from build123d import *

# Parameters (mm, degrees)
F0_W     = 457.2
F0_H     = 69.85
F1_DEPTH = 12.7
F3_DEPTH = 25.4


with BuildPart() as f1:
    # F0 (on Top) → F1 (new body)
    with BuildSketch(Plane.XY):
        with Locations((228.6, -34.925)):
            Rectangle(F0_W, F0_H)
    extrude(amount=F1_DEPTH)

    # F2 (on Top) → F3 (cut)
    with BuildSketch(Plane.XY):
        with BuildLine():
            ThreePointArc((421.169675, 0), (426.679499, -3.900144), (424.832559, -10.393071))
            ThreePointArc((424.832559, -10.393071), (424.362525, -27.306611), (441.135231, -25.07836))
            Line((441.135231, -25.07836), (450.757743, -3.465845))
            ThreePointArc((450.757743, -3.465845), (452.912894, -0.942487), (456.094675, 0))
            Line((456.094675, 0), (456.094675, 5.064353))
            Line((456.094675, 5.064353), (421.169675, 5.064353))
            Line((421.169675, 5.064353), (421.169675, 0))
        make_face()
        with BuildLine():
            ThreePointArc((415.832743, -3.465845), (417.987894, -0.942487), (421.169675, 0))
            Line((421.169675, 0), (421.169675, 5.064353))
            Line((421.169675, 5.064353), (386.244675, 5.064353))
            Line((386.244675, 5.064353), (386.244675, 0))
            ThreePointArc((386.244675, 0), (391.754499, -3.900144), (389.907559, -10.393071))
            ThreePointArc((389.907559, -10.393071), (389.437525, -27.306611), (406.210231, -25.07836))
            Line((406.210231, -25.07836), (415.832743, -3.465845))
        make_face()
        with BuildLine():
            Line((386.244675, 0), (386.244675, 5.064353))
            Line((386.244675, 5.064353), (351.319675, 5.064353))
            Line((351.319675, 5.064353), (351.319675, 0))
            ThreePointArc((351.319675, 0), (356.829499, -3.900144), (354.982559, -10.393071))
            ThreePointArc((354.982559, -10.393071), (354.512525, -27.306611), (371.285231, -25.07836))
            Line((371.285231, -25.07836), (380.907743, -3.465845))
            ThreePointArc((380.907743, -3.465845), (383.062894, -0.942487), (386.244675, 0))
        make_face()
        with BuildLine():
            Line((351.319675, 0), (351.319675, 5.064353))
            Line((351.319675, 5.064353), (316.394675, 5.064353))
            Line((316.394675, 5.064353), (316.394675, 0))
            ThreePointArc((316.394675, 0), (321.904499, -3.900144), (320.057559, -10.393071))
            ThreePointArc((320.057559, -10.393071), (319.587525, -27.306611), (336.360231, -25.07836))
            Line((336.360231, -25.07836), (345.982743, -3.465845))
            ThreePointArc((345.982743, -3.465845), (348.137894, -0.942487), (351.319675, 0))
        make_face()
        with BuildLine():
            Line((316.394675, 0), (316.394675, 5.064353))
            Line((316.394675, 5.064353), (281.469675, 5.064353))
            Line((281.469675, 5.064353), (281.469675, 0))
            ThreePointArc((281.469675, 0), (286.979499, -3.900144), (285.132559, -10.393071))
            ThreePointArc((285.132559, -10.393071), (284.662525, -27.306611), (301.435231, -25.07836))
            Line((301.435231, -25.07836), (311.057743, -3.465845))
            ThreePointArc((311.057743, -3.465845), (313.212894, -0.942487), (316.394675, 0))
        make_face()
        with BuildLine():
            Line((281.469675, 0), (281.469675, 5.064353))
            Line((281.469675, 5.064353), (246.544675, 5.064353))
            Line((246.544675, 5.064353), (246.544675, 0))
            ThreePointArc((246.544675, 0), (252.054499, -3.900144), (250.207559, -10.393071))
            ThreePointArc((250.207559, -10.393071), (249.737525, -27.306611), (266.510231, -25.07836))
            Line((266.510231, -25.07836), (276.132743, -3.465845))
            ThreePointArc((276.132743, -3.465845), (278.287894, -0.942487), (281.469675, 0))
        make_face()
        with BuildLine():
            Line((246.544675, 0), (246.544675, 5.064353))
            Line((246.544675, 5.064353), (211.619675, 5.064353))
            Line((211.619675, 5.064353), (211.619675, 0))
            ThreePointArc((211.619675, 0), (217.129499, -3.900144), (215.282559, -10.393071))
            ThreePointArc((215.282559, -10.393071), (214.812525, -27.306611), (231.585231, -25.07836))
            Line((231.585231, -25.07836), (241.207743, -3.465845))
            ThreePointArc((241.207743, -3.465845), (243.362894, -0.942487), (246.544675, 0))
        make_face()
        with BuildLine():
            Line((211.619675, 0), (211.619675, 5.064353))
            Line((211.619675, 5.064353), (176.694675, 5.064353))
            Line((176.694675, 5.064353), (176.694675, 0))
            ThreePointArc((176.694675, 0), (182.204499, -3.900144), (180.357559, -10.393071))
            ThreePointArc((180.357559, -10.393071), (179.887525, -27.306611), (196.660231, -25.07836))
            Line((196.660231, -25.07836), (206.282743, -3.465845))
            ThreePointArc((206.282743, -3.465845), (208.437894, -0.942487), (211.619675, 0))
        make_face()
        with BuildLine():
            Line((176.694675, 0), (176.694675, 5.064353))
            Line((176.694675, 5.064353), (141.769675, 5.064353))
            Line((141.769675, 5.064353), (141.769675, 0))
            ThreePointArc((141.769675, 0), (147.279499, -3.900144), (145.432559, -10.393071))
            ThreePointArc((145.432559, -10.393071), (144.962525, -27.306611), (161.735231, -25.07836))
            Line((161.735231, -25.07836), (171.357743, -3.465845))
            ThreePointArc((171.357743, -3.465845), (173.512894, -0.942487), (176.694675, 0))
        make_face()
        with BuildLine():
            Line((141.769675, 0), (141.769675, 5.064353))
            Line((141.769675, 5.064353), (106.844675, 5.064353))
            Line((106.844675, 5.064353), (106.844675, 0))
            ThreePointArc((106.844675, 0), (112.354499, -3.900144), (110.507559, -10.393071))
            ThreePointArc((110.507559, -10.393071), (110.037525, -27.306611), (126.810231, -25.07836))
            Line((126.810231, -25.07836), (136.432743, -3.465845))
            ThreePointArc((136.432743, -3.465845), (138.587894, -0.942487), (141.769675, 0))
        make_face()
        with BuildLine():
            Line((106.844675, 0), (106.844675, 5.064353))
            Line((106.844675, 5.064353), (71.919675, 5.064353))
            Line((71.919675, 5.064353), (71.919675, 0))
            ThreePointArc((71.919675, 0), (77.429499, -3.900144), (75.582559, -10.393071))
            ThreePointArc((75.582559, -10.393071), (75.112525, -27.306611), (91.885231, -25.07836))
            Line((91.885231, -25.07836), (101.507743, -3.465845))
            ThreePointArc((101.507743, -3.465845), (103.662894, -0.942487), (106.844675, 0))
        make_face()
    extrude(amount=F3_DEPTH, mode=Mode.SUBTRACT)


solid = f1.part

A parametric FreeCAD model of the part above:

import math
import FreeCAD as App
import Part
import Sketcher

V = App.Vector
Q = App.Units.Quantity


def add_polygon(sketch, points):
    """Adds a closed chain of lines whose ends are joined by coincident constraints."""
    first, n = sketch.GeometryCount, len(points)
    for a, b in zip(points, points[1:] + points[:1]):
        sketch.addGeometry(Part.LineSegment(App.Vector(*a, 0), App.Vector(*b, 0)), False)
    for i in range(n):
        sketch.addConstraint(Sketcher.Constraint("Coincident", first + i, 2, first + (i + 1) % n, 1))

doc = App.newDocument("Part")
body = doc.addObject("PartDesign::Body", "Body")

# Sketch on XY plane
sketch1 = body.newObject("Sketcher::SketchObject", "Sketch")
sketch1.AttachmentSupport = (doc.getObject("XY_Plane"), [""])
sketch1.MapMode = "FlatFace"
add_polygon(sketch1, [(0, 0), (0, -69.85), (457.2, -69.85), (457.2, 0)])  # lines 0-3
sketch1.addConstraint(Sketcher.Constraint("Vertical", 0))
sketch1.addConstraint(Sketcher.Constraint("Horizontal", 1))
sketch1.addConstraint(Sketcher.Constraint("Vertical", 2))
sketch1.addConstraint(Sketcher.Constraint("Horizontal", 3))
sketch1.addConstraint(Sketcher.Constraint("Coincident", 3, 2, -1, 1))
sketch1.addConstraint(Sketcher.Constraint("DistanceX", 1, 1, 1, 2, Q("18 in")))
sketch1.addConstraint(Sketcher.Constraint("DistanceY", 0, 2, 0, 1, Q("2.75 in")))
pad1 = body.newObject("PartDesign::Pad", "Pad")
pad1.Profile = sketch1
pad1.Length = Q("0.5 in")

# Sketch on XY plane
sketch2 = body.newObject("Sketcher::SketchObject", "Sketch001")
sketch2.AttachmentSupport = (doc.getObject("XY_Plane"), [""])
sketch2.MapMode = "FlatFace"
sketch2.addGeometry(Part.ArcOfCircle(Part.Circle(V(421.169675, -5.842, 0), V(0, 0, 1), 5.842), math.radians(-51.171498), math.radians(90)), False)
sketch2.addGeometry(Part.ArcOfCircle(Part.Circle(V(431.8, -19.05, 0), V(0, 0, 1), 11.1125), math.radians(128.828495), math.radians(327.147065)), False)
sketch2.addGeometry(Part.LineSegment(V(441.135231, -25.07836, 0), V(450.757743, -3.465845, 0)), False)
sketch2.addGeometry(Part.ArcOfCircle(Part.Circle(V(456.094676, -5.842, 0), V(0, 0, 1), 5.842), math.radians(90.000011), math.radians(156.000002)), False)
sketch2.addGeometry(Part.LineSegment(V(456.094675, 0, 0), V(456.094675, 5.064353, 0)), False)
sketch2.addGeometry(Part.LineSegment(V(456.094675, 5.064353, 0), V(71.919675, 5.064353, 0)), False)
sketch2.addGeometry(Part.LineSegment(V(71.919675, 5.064353, 0), V(71.919675, 0, 0)), False)
sketch2.addGeometry(Part.ArcOfCircle(Part.Circle(V(71.919675, -5.842, 0), V(0, 0, 1), 5.842), math.radians(-51.171498), math.radians(90)), False)
sketch2.addGeometry(Part.ArcOfCircle(Part.Circle(V(82.55, -19.05, 0), V(0, 0, 1), 11.1125), math.radians(128.828495), math.radians(327.147065)), False)
sketch2.addGeometry(Part.LineSegment(V(91.885231, -25.07836, 0), V(101.507743, -3.465845, 0)), False)
sketch2.addGeometry(Part.ArcOfCircle(Part.Circle(V(106.844676, -5.842, 0), V(0, 0, 1), 5.842), math.radians(90.000011), math.radians(156.000002)), False)
sketch2.addGeometry(Part.ArcOfCircle(Part.Circle(V(106.844675, -5.842, 0), V(0, 0, 1), 5.842), math.radians(-51.171498), math.radians(90)), False)
sketch2.addGeometry(Part.ArcOfCircle(Part.Circle(V(117.475, -19.05, 0), V(0, 0, 1), 11.1125), math.radians(128.828495), math.radians(327.147065)), False)
sketch2.addGeometry(Part.LineSegment(V(126.810231, -25.07836, 0), V(136.432743, -3.465845, 0)), False)
sketch2.addGeometry(Part.ArcOfCircle(Part.Circle(V(141.769676, -5.842, 0), V(0, 0, 1), 5.842), math.radians(90.000011), math.radians(156.000002)), False)
sketch2.addGeometry(Part.ArcOfCircle(Part.Circle(V(141.769675, -5.842, 0), V(0, 0, 1), 5.842), math.radians(-51.171498), math.radians(90)), False)
sketch2.addGeometry(Part.ArcOfCircle(Part.Circle(V(152.4, -19.05, 0), V(0, 0, 1), 11.1125), math.radians(128.828495), math.radians(327.147065)), False)
sketch2.addGeometry(Part.LineSegment(V(161.735231, -25.07836, 0), V(171.357743, -3.465845, 0)), False)
sketch2.addGeometry(Part.ArcOfCircle(Part.Circle(V(176.694676, -5.842, 0), V(0, 0, 1), 5.842), math.radians(90.000011), math.radians(156.000002)), False)
sketch2.addGeometry(Part.ArcOfCircle(Part.Circle(V(176.694675, -5.842, 0), V(0, 0, 1), 5.842), math.radians(-51.171498), math.radians(90)), False)
sketch2.addGeometry(Part.ArcOfCircle(Part.Circle(V(187.325, -19.05, 0), V(0, 0, 1), 11.1125), math.radians(128.828495), math.radians(327.147065)), False)
sketch2.addGeometry(Part.LineSegment(V(196.660231, -25.07836, 0), V(206.282743, -3.465845, 0)), False)
sketch2.addGeometry(Part.ArcOfCircle(Part.Circle(V(211.619676, -5.842, 0), V(0, 0, 1), 5.842), math.radians(90.000011), math.radians(156.000002)), False)
sketch2.addGeometry(Part.ArcOfCircle(Part.Circle(V(211.619675, -5.842, 0), V(0, 0, 1), 5.842), math.radians(-51.171498), math.radians(90)), False)
sketch2.addGeometry(Part.ArcOfCircle(Part.Circle(V(222.25, -19.05, 0), V(0, 0, 1), 11.1125), math.radians(128.828495), math.radians(327.147065)), False)
sketch2.addGeometry(Part.LineSegment(V(231.585231, -25.07836, 0), V(241.207743, -3.465845, 0)), False)
sketch2.addGeometry(Part.ArcOfCircle(Part.Circle(V(246.544676, -5.842, 0), V(0, 0, 1), 5.842), math.radians(90.000011), math.radians(156.000002)), False)
sketch2.addGeometry(Part.ArcOfCircle(Part.Circle(V(246.544675, -5.842, 0), V(0, 0, 1), 5.842), math.radians(-51.171498), math.radians(90)), False)
sketch2.addGeometry(Part.ArcOfCircle(Part.Circle(V(257.175, -19.05, 0), V(0, 0, 1), 11.1125), math.radians(128.828495), math.radians(327.147065)), False)
sketch2.addGeometry(Part.LineSegment(V(266.510231, -25.07836, 0), V(276.132743, -3.465845, 0)), False)
sketch2.addGeometry(Part.ArcOfCircle(Part.Circle(V(281.469676, -5.842, 0), V(0, 0, 1), 5.842), math.radians(90.000011), math.radians(156.000002)), False)
sketch2.addGeometry(Part.ArcOfCircle(Part.Circle(V(281.469675, -5.842, 0), V(0, 0, 1), 5.842), math.radians(-51.171498), math.radians(90)), False)
sketch2.addGeometry(Part.ArcOfCircle(Part.Circle(V(292.1, -19.05, 0), V(0, 0, 1), 11.1125), math.radians(128.828495), math.radians(327.147065)), False)
sketch2.addGeometry(Part.LineSegment(V(301.435231, -25.07836, 0), V(311.057743, -3.465845, 0)), False)
sketch2.addGeometry(Part.ArcOfCircle(Part.Circle(V(316.394676, -5.842, 0), V(0, 0, 1), 5.842), math.radians(90.000011), math.radians(156.000002)), False)
sketch2.addGeometry(Part.ArcOfCircle(Part.Circle(V(316.394675, -5.842, 0), V(0, 0, 1), 5.842), math.radians(-51.171498), math.radians(90)), False)
sketch2.addGeometry(Part.ArcOfCircle(Part.Circle(V(327.025, -19.05, 0), V(0, 0, 1), 11.1125), math.radians(128.828495), math.radians(327.147065)), False)
sketch2.addGeometry(Part.LineSegment(V(336.360231, -25.07836, 0), V(345.982743, -3.465845, 0)), False)
sketch2.addGeometry(Part.ArcOfCircle(Part.Circle(V(351.319676, -5.842, 0), V(0, 0, 1), 5.842), math.radians(90.000011), math.radians(156.000002)), False)
sketch2.addGeometry(Part.ArcOfCircle(Part.Circle(V(351.319675, -5.842, 0), V(0, 0, 1), 5.842), math.radians(-51.171498), math.radians(90)), False)
sketch2.addGeometry(Part.ArcOfCircle(Part.Circle(V(361.95, -19.05, 0), V(0, 0, 1), 11.1125), math.radians(128.828495), math.radians(327.147065)), False)
sketch2.addGeometry(Part.LineSegment(V(371.285231, -25.07836, 0), V(380.907743, -3.465845, 0)), False)
sketch2.addGeometry(Part.ArcOfCircle(Part.Circle(V(386.244676, -5.842, 0), V(0, 0, 1), 5.842), math.radians(90.000011), math.radians(156.000002)), False)
sketch2.addGeometry(Part.ArcOfCircle(Part.Circle(V(386.244675, -5.842, 0), V(0, 0, 1), 5.842), math.radians(-51.171498), math.radians(90)), False)
sketch2.addGeometry(Part.ArcOfCircle(Part.Circle(V(396.875, -19.05, 0), V(0, 0, 1), 11.1125), math.radians(128.828495), math.radians(327.147065)), False)
sketch2.addGeometry(Part.LineSegment(V(406.210231, -25.07836, 0), V(415.832743, -3.465845, 0)), False)
sketch2.addGeometry(Part.ArcOfCircle(Part.Circle(V(421.169676, -5.842, 0), V(0, 0, 1), 5.842), math.radians(90.000011), math.radians(156.000002)), False)
sketch2.addConstraint(Sketcher.Constraint("Tangent", 0, 1, 1, 1))
sketch2.addConstraint(Sketcher.Constraint("Coincident", 1, 2, 2, 1))
sketch2.addConstraint(Sketcher.Constraint("Tangent", 2, 2, 3, 2))
sketch2.addConstraint(Sketcher.Constraint("Coincident", 3, 1, 4, 1))
sketch2.addConstraint(Sketcher.Constraint("Coincident", 4, 2, 5, 1))
sketch2.addConstraint(Sketcher.Constraint("Coincident", 5, 2, 6, 1))
sketch2.addConstraint(Sketcher.Constraint("Coincident", 6, 2, 7, 2))
sketch2.addConstraint(Sketcher.Constraint("Tangent", 7, 1, 8, 1))
sketch2.addConstraint(Sketcher.Constraint("Coincident", 8, 2, 9, 1))
sketch2.addConstraint(Sketcher.Constraint("Tangent", 9, 2, 10, 2))
sketch2.addConstraint(Sketcher.Constraint("Tangent", 10, 1, 11, 2))
sketch2.addConstraint(Sketcher.Constraint("Tangent", 11, 1, 12, 1))
sketch2.addConstraint(Sketcher.Constraint("Coincident", 12, 2, 13, 1))
sketch2.addConstraint(Sketcher.Constraint("Tangent", 13, 2, 14, 2))
sketch2.addConstraint(Sketcher.Constraint("Tangent", 14, 1, 15, 2))
sketch2.addConstraint(Sketcher.Constraint("Tangent", 15, 1, 16, 1))
sketch2.addConstraint(Sketcher.Constraint("Coincident", 16, 2, 17, 1))
sketch2.addConstraint(Sketcher.Constraint("Tangent", 17, 2, 18, 2))
sketch2.addConstraint(Sketcher.Constraint("Tangent", 18, 1, 19, 2))
sketch2.addConstraint(Sketcher.Constraint("Tangent", 19, 1, 20, 1))
sketch2.addConstraint(Sketcher.Constraint("Coincident", 20, 2, 21, 1))
sketch2.addConstraint(Sketcher.Constraint("Tangent", 21, 2, 22, 2))
sketch2.addConstraint(Sketcher.Constraint("Tangent", 22, 1, 23, 2))
sketch2.addConstraint(Sketcher.Constraint("Tangent", 23, 1, 24, 1))
sketch2.addConstraint(Sketcher.Constraint("Coincident", 24, 2, 25, 1))
sketch2.addConstraint(Sketcher.Constraint("Tangent", 25, 2, 26, 2))
sketch2.addConstraint(Sketcher.Constraint("Tangent", 26, 1, 27, 2))
sketch2.addConstraint(Sketcher.Constraint("Tangent", 27, 1, 28, 1))
sketch2.addConstraint(Sketcher.Constraint("Coincident", 28, 2, 29, 1))
sketch2.addConstraint(Sketcher.Constraint("Tangent", 29, 2, 30, 2))
sketch2.addConstraint(Sketcher.Constraint("Tangent", 30, 1, 31, 2))
sketch2.addConstraint(Sketcher.Constraint("Tangent", 31, 1, 32, 1))
sketch2.addConstraint(Sketcher.Constraint("Coincident", 32, 2, 33, 1))
sketch2.addConstraint(Sketcher.Constraint("Tangent", 33, 2, 34, 2))
sketch2.addConstraint(Sketcher.Constraint("Tangent", 34, 1, 35, 2))
sketch2.addConstraint(Sketcher.Constraint("Tangent", 35, 1, 36, 1))
sketch2.addConstraint(Sketcher.Constraint("Coincident", 36, 2, 37, 1))
sketch2.addConstraint(Sketcher.Constraint("Tangent", 37, 2, 38, 2))
sketch2.addConstraint(Sketcher.Constraint("Tangent", 38, 1, 39, 2))
sketch2.addConstraint(Sketcher.Constraint("Tangent", 39, 1, 40, 1))
sketch2.addConstraint(Sketcher.Constraint("Coincident", 40, 2, 41, 1))
sketch2.addConstraint(Sketcher.Constraint("Tangent", 41, 2, 42, 2))
sketch2.addConstraint(Sketcher.Constraint("Tangent", 42, 1, 43, 2))
sketch2.addConstraint(Sketcher.Constraint("Tangent", 43, 1, 44, 1))
sketch2.addConstraint(Sketcher.Constraint("Coincident", 44, 2, 45, 1))
sketch2.addConstraint(Sketcher.Constraint("Tangent", 45, 2, 46, 2))
sketch2.addConstraint(Sketcher.Constraint("Tangent", 46, 1, 0, 2))
sketch2.addConstraint(Sketcher.Constraint("Vertical", 4))
sketch2.addConstraint(Sketcher.Constraint("Horizontal", 5))
sketch2.addConstraint(Sketcher.Constraint("Vertical", 6))
sketch2.addConstraint(Sketcher.Constraint("Equal", 0, 3))
sketch2.addConstraint(Sketcher.Constraint("Equal", 3, 7))
sketch2.addConstraint(Sketcher.Constraint("Equal", 1, 8))
sketch2.addConstraint(Sketcher.Constraint("Equal", 7, 10))
sketch2.addConstraint(Sketcher.Constraint("Equal", 10, 11))
sketch2.addConstraint(Sketcher.Constraint("Equal", 8, 12))
sketch2.addConstraint(Sketcher.Constraint("Equal", 11, 14))
sketch2.addConstraint(Sketcher.Constraint("Equal", 14, 15))
sketch2.addConstraint(Sketcher.Constraint("Equal", 12, 16))
sketch2.addConstraint(Sketcher.Constraint("Equal", 15, 18))
sketch2.addConstraint(Sketcher.Constraint("Equal", 18, 19))
sketch2.addConstraint(Sketcher.Constraint("Equal", 16, 20))
sketch2.addConstraint(Sketcher.Constraint("Equal", 19, 22))
sketch2.addConstraint(Sketcher.Constraint("Equal", 22, 23))
sketch2.addConstraint(Sketcher.Constraint("Equal", 20, 24))
sketch2.addConstraint(Sketcher.Constraint("Equal", 23, 26))
sketch2.addConstraint(Sketcher.Constraint("Equal", 26, 27))
sketch2.addConstraint(Sketcher.Constraint("Equal", 24, 28))
sketch2.addConstraint(Sketcher.Constraint("Equal", 27, 30))
sketch2.addConstraint(Sketcher.Constraint("Equal", 30, 31))
sketch2.addConstraint(Sketcher.Constraint("Equal", 28, 32))
sketch2.addConstraint(Sketcher.Constraint("Equal", 31, 34))
sketch2.addConstraint(Sketcher.Constraint("Equal", 34, 35))
sketch2.addConstraint(Sketcher.Constraint("Equal", 32, 36))
sketch2.addConstraint(Sketcher.Constraint("Equal", 35, 38))
sketch2.addConstraint(Sketcher.Constraint("Equal", 38, 39))
sketch2.addConstraint(Sketcher.Constraint("Equal", 36, 40))
sketch2.addConstraint(Sketcher.Constraint("Equal", 39, 42))
sketch2.addConstraint(Sketcher.Constraint("Equal", 42, 43))
sketch2.addConstraint(Sketcher.Constraint("Equal", 40, 44))
sketch2.addConstraint(Sketcher.Constraint("Equal", 43, 46))
sketch2.addConstraint(Sketcher.Constraint("PointOnObject", 3, 1, -1))
sketch2.addConstraint(Sketcher.Constraint("PointOnObject", 6, 2, -1))
sketch2.addConstraint(Sketcher.Constraint("PointOnObject", 10, 1, -1))
sketch2.addConstraint(Sketcher.Constraint("PointOnObject", 14, 1, -1))
sketch2.addConstraint(Sketcher.Constraint("PointOnObject", 18, 1, -1))
sketch2.addConstraint(Sketcher.Constraint("PointOnObject", 22, 1, -1))
sketch2.addConstraint(Sketcher.Constraint("PointOnObject", 26, 1, -1))
sketch2.addConstraint(Sketcher.Constraint("PointOnObject", 30, 1, -1))
sketch2.addConstraint(Sketcher.Constraint("PointOnObject", 34, 1, -1))
sketch2.addConstraint(Sketcher.Constraint("PointOnObject", 38, 1, -1))
sketch2.addConstraint(Sketcher.Constraint("PointOnObject", 42, 1, -1))
sketch2.addConstraint(Sketcher.Constraint("PointOnObject", 46, 1, -1))
sketch2.addConstraint(Sketcher.Constraint("Parallel", 2, 9))
sketch2.addConstraint(Sketcher.Constraint("Parallel", 9, 13))
sketch2.addConstraint(Sketcher.Constraint("Parallel", 13, 17))
sketch2.addConstraint(Sketcher.Constraint("Parallel", 17, 21))
sketch2.addConstraint(Sketcher.Constraint("Parallel", 21, 25))
sketch2.addConstraint(Sketcher.Constraint("Parallel", 25, 29))
sketch2.addConstraint(Sketcher.Constraint("Parallel", 29, 33))
sketch2.addConstraint(Sketcher.Constraint("Parallel", 33, 37))
sketch2.addConstraint(Sketcher.Constraint("Parallel", 37, 41))
sketch2.addConstraint(Sketcher.Constraint("Parallel", 41, 45))
sketch2.addConstraint(Sketcher.Constraint("Horizontal", 1, 3, 8, 3))
sketch2.addConstraint(Sketcher.Constraint("Horizontal", 8, 3, 12, 3))
sketch2.addConstraint(Sketcher.Constraint("Horizontal", 12, 3, 16, 3))
sketch2.addConstraint(Sketcher.Constraint("Horizontal", 16, 3, 20, 3))
sketch2.addConstraint(Sketcher.Constraint("Horizontal", 20, 3, 24, 3))
sketch2.addConstraint(Sketcher.Constraint("Horizontal", 24, 3, 28, 3))
sketch2.addConstraint(Sketcher.Constraint("Horizontal", 28, 3, 32, 3))
sketch2.addConstraint(Sketcher.Constraint("Horizontal", 32, 3, 36, 3))
sketch2.addConstraint(Sketcher.Constraint("Horizontal", 36, 3, 40, 3))
sketch2.addConstraint(Sketcher.Constraint("Horizontal", 40, 3, 44, 3))
sketch2.addConstraint(Sketcher.Constraint("Horizontal", 1, 2, 8, 2))
sketch2.addConstraint(Sketcher.Constraint("Horizontal", 8, 2, 12, 2))
sketch2.addConstraint(Sketcher.Constraint("Horizontal", 12, 2, 16, 2))
sketch2.addConstraint(Sketcher.Constraint("Horizontal", 16, 2, 20, 2))
sketch2.addConstraint(Sketcher.Constraint("Horizontal", 20, 2, 24, 2))
sketch2.addConstraint(Sketcher.Constraint("Horizontal", 24, 2, 28, 2))
sketch2.addConstraint(Sketcher.Constraint("Horizontal", 28, 2, 32, 2))
sketch2.addConstraint(Sketcher.Constraint("Horizontal", 32, 2, 36, 2))
sketch2.addConstraint(Sketcher.Constraint("Horizontal", 36, 2, 40, 2))
sketch2.addConstraint(Sketcher.Constraint("Horizontal", 40, 2, 44, 2))
sketch2.addConstraint(Sketcher.Constraint("Vertical", 7, 3, 5, 2))
sketch2.addConstraint(Sketcher.Constraint("Vertical", 11, 3, 10, 1))
sketch2.addConstraint(Sketcher.Constraint("Vertical", 15, 3, 14, 1))
sketch2.addConstraint(Sketcher.Constraint("Vertical", 19, 3, 18, 1))
sketch2.addConstraint(Sketcher.Constraint("Vertical", 23, 3, 22, 1))
sketch2.addConstraint(Sketcher.Constraint("Vertical", 27, 3, 26, 1))
sketch2.addConstraint(Sketcher.Constraint("Vertical", 31, 3, 30, 1))
sketch2.addConstraint(Sketcher.Constraint("Vertical", 35, 3, 34, 1))
sketch2.addConstraint(Sketcher.Constraint("Vertical", 39, 3, 38, 1))
sketch2.addConstraint(Sketcher.Constraint("Vertical", 43, 3, 42, 1))
sketch2.addConstraint(Sketcher.Constraint("Vertical", 0, 3, 46, 1))
sketch2.addConstraint(Sketcher.Constraint("Radius", 0, Q("0.23 in")))
sketch2.addConstraint(Sketcher.Constraint("DistanceX", -1, 1, 1, 3, Q("17 in")))
sketch2.addConstraint(Sketcher.Constraint("DistanceX", -1, 1, 16, 3, Q("6 in")))
sketch2.addConstraint(Sketcher.Constraint("Angle", 2, Q("65.999999 deg")))
sketch2.addConstraint(Sketcher.Constraint("Radius", 1, Q("0.4375 in")))
sketch2.addConstraint(Sketcher.Constraint("DistanceX", 5, 2, 5, 1, Q("15.125 in")))
sketch2.addConstraint(Sketcher.Constraint("DistanceY", 1, 3, -1, 1, Q("0.75 in")))
sketch2.addConstraint(Sketcher.Constraint("DistanceY", 4, 1, 4, 2, 5.064353))
pocket1 = body.newObject("PartDesign::Pocket", "Pocket")
pocket1.Profile = sketch2
pocket1.Length = Q("1 in")
pocket1.Reversed = True

doc.recompute()
